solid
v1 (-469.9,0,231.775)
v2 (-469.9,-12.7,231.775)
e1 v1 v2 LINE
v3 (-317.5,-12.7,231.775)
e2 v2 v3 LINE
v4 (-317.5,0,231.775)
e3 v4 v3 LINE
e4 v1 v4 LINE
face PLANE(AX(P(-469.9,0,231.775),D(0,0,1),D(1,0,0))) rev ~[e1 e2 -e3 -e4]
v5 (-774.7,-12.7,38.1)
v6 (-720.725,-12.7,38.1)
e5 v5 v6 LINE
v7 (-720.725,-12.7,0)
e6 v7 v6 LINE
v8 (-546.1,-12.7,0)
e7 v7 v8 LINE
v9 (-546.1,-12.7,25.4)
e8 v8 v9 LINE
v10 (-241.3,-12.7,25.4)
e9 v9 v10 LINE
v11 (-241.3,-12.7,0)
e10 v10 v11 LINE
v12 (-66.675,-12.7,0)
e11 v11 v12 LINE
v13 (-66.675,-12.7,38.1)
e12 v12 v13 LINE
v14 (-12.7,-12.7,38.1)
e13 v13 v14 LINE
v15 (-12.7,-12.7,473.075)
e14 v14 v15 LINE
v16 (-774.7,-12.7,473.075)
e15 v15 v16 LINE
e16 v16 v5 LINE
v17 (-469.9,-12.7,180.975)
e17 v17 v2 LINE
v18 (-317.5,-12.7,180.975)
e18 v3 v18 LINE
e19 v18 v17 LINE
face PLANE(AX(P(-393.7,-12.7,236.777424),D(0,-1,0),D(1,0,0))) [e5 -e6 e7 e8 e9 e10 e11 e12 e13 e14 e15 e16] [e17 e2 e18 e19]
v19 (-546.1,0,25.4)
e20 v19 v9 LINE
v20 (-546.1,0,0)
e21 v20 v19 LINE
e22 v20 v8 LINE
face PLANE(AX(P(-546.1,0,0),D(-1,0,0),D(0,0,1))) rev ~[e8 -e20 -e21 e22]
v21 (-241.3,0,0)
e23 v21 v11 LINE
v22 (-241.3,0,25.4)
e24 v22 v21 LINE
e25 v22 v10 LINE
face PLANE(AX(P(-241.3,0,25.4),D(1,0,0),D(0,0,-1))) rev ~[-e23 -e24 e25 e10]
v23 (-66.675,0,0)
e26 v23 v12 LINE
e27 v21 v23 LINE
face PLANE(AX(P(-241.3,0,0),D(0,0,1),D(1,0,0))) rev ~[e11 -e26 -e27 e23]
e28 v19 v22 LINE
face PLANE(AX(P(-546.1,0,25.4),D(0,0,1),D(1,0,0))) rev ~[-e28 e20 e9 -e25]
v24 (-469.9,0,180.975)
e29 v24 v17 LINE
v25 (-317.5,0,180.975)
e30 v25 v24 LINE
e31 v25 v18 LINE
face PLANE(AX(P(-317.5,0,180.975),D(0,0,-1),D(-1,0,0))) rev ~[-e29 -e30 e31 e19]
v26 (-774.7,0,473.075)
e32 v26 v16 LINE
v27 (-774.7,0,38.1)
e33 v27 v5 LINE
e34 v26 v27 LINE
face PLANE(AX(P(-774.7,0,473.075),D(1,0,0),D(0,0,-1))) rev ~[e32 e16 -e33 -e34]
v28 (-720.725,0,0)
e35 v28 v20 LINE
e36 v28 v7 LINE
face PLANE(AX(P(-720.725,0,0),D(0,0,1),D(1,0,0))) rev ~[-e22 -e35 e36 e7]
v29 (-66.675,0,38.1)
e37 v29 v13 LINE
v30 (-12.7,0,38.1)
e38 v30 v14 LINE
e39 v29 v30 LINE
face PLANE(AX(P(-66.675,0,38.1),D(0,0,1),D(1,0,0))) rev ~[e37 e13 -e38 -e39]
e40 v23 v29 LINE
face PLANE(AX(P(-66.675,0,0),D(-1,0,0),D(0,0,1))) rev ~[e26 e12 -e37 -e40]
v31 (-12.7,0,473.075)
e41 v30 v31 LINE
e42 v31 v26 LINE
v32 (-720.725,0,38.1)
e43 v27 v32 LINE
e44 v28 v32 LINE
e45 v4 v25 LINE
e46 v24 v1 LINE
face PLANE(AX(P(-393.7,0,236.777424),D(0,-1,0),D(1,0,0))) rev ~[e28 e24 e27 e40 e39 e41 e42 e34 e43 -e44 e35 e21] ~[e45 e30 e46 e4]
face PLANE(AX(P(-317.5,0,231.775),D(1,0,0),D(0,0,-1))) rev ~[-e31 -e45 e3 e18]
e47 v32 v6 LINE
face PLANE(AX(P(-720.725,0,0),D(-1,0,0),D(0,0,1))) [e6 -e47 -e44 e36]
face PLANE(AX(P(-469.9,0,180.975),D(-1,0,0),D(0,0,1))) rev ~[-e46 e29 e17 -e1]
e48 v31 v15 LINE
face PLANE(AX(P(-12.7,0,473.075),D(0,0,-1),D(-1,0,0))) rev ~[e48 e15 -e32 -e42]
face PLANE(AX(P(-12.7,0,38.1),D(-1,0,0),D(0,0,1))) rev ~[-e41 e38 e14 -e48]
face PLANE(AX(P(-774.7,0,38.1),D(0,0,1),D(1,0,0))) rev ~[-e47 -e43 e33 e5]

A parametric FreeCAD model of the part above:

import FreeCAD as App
import Part
import Sketcher
Q = App.Units.Quantity


def add_polygon(sketch, points):
    """Adds a closed chain of lines whose ends are joined by coincident constraints."""
    first, n = sketch.GeometryCount, len(points)
    for a, b in zip(points, points[1:] + points[:1]):
        sketch.addGeometry(Part.LineSegment(App.Vector(*a, 0), App.Vector(*b, 0)), False)
    for i in range(n):
        sketch.addConstraint(Sketcher.Constraint("Coincident", first + i, 2, first + (i + 1) % n, 1))

doc = App.newDocument("Part")
body = doc.addObject("PartDesign::Body", "Body")

# Sketch on XZ plane
sketch1 = doc.addObject("Sketcher::SketchObject", "Sketch")
body.addObject(sketch1)
sketch1.AttachmentSupport = (doc.XZ_Plane, [""])
sketch1.MapMode = "FlatFace"
add_polygon(sketch1, [(-13, 38), (-13, 473), (-775, 473), (-775, 38), (-721, 38), (-721, 0), (-546, 0), (-546, 25), (-241, 25), (-241, 0), (-67, 0), (-67, 38)])  # lines 0-11
add_polygon(sketch1, [(-470, 181), (-470, 232), (-318, 232), (-318, 181)])  # lines 12-15
sketch1.addConstraint(Sketcher.Constraint("Vertical", 0))
sketch1.addConstraint(Sketcher.Constraint("Horizontal", 1))
sketch1.addConstraint(Sketcher.Constraint("Vertical", 2))
sketch1.addConstraint(Sketcher.Constraint("Horizontal", 3))
sketch1.addConstraint(Sketcher.Constraint("Vertical", 4))
sketch1.addConstraint(Sketcher.Constraint("Horizontal", 5))
sketch1.addConstraint(Sketcher.Constraint("Vertical", 6))
sketch1.addConstraint(Sketcher.Constraint("Horizontal", 7))
sketch1.addConstraint(Sketcher.Constraint("Vertical", 8))
sketch1.addConstraint(Sketcher.Constraint("Horizontal", 9))
sketch1.addConstraint(Sketcher.Constraint("Vertical", 10))
sketch1.addConstraint(Sketcher.Constraint("Horizontal", 11))
sketch1.addConstraint(Sketcher.Constraint("Vertical", 12))
sketch1.addConstraint(Sketcher.Constraint("Horizontal", 13))
sketch1.addConstraint(Sketcher.Constraint("Vertical", 14))
sketch1.addConstraint(Sketcher.Constraint("Horizontal", 15))
sketch1.addConstraint(Sketcher.Constraint("PointOnObject", 4, 2, -1))
sketch1.addConstraint(Sketcher.Constraint("PointOnObject", 8, 2, -1))
sketch1.addConstraint(Sketcher.Constraint("Horizontal", 3, 2, 10, 2))
sketch1.addConstraint(Sketcher.Constraint("Equal", 5, 9))
sketch1.addConstraint(Sketcher.Constraint("Equal", 3, 11))
sketch1.addConstraint(Sketcher.Constraint("DistanceX", 1, 2, 1, 1, Q("30 in")))
sketch1.addConstraint(Sketcher.Constraint("DistanceX", 7, 1, 7, 2, Q("12 in")))
sketch1.addConstraint(Sketcher.Constraint("DistanceX", 13, 1, 13, 2, Q("6 in")))
sketch1.addConstraint(Sketcher.Constraint("DistanceY", 6, 1, 6, 2, Q("1 in")))
sketch1.addConstraint(Sketcher.Constraint("DistanceY", 12, 1, 12, 2, Q("2 in")))
sketch1.addConstraint(Sketcher.Constraint("DistanceY", 4, 2, 4, 1, Q("1.5 in")))
sketch1.addConstraint(Sketcher.Constraint("DistanceX", 6, 2, 12, 2, Q("3 in")))
sketch1.addConstraint(Sketcher.Constraint("DistanceX", 0, 2, -1, 1, Q("0.5 in")))
sketch1.addConstraint(Sketcher.Constraint("DistanceX", 3, 1, 3, 2, Q("2.125 in")))
sketch1.addConstraint(Sketcher.Constraint("DistanceY", 0, 1, 0, 2, Q("17.125 in")))
sketch1.addConstraint(Sketcher.Constraint("DistanceY", -1, 1, 12, 2, Q("9.125 in")))
pad1 = doc.addObject("PartDesign::Pad", "Pad")
body.addObject(pad1)
pad1.Profile = sketch1
pad1.Length = Q("0.5 in")

doc.recompute()
